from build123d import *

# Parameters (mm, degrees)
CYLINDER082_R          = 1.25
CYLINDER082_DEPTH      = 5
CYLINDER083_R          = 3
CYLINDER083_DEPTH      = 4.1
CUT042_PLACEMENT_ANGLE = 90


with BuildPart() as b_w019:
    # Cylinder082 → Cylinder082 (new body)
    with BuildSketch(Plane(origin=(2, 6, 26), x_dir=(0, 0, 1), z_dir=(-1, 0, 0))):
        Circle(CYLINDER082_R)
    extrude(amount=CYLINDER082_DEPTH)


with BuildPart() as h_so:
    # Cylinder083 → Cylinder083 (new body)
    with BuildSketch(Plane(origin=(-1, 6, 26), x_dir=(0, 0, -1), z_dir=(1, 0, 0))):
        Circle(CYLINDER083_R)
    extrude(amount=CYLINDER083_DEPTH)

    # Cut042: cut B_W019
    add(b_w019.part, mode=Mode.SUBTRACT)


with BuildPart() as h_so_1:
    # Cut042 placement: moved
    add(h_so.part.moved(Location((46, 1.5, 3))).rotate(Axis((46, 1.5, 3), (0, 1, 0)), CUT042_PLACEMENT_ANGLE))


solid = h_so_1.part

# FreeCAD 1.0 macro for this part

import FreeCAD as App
import Part
import Sketcher
from FreeCAD import Vector
Q = App.Units.Quantity

doc = App.newDocument("Part")
body = doc.addObject("PartDesign::Body", "Body")

sketch1 = body.newObject("Sketcher::SketchObject", "Sketch")
sketch1.AttachmentSupport = (doc.getObject("YZ_Plane"), [""])
sketch1.MapMode = "FlatFace"
sketch1.AttachmentOffset = App.Placement(Vector(0, 0, 2), App.Rotation())
sketch1.addGeometry(Part.Circle(Vector(6, 26, 0), Vector(0, 0, 1), 1.2), False)
sketch1.addConstraint(Sketcher.Constraint("Diameter", 0, Q("2.5 mm")))
sketch1.addConstraint(Sketcher.Constraint("DistanceX", -1, 1, 0, 3, Q("6 mm")))
sketch1.addConstraint(Sketcher.Constraint("DistanceY", -1, 1, 0, 3, Q("26 mm")))
pad1 = body.newObject("PartDesign::Pad", "Pad")
pad1.Profile = sketch1
pad1.Length = 5
pad1.Reversed = True
body2 = doc.addObject("PartDesign::Body", "Body001")

sketch2 = body2.newObject("Sketcher::SketchObject", "Sketch001")
sketch2.AttachmentSupport = (doc.getObject("YZ_Plane001"), [""])
sketch2.MapMode = "FlatFace"
sketch2.AttachmentOffset = App.Placement(Vector(0, 0, -1), App.Rotation())
sketch2.addGeometry(Part.Circle(Vector(6, 26, 0), Vector(0, 0, 1), 3), False)
sketch2.addConstraint(Sketcher.Constraint("Diameter", 0, Q("6 mm")))
sketch2.addConstraint(Sketcher.Constraint("DistanceX", -1, 1, 0, 3, Q("6 mm")))
sketch2.addConstraint(Sketcher.Constraint("DistanceY", -1, 1, 0, 3, Q("26 mm")))
pad2 = body2.newObject("PartDesign::Pad", "Pad001")
pad2.Profile = sketch2
pad2.Length = 4.1
doc.recompute()

boolean = body2.newObject("PartDesign::Boolean", "Boolean")
boolean.Type = "Cut"
boolean.addObjects([body])
body3 = doc.addObject("PartDesign::Body", "Body002")
doc.recompute()

body2.Placement = App.Placement(Vector(46, 1.5, 3), App.Rotation(Vector(0, 1, 0), 90))
boolean2 = body3.newObject("PartDesign::Boolean", "Boolean001")
boolean2.Type = "Fuse"
boolean2.addObjects([body2])

doc.recompute()
